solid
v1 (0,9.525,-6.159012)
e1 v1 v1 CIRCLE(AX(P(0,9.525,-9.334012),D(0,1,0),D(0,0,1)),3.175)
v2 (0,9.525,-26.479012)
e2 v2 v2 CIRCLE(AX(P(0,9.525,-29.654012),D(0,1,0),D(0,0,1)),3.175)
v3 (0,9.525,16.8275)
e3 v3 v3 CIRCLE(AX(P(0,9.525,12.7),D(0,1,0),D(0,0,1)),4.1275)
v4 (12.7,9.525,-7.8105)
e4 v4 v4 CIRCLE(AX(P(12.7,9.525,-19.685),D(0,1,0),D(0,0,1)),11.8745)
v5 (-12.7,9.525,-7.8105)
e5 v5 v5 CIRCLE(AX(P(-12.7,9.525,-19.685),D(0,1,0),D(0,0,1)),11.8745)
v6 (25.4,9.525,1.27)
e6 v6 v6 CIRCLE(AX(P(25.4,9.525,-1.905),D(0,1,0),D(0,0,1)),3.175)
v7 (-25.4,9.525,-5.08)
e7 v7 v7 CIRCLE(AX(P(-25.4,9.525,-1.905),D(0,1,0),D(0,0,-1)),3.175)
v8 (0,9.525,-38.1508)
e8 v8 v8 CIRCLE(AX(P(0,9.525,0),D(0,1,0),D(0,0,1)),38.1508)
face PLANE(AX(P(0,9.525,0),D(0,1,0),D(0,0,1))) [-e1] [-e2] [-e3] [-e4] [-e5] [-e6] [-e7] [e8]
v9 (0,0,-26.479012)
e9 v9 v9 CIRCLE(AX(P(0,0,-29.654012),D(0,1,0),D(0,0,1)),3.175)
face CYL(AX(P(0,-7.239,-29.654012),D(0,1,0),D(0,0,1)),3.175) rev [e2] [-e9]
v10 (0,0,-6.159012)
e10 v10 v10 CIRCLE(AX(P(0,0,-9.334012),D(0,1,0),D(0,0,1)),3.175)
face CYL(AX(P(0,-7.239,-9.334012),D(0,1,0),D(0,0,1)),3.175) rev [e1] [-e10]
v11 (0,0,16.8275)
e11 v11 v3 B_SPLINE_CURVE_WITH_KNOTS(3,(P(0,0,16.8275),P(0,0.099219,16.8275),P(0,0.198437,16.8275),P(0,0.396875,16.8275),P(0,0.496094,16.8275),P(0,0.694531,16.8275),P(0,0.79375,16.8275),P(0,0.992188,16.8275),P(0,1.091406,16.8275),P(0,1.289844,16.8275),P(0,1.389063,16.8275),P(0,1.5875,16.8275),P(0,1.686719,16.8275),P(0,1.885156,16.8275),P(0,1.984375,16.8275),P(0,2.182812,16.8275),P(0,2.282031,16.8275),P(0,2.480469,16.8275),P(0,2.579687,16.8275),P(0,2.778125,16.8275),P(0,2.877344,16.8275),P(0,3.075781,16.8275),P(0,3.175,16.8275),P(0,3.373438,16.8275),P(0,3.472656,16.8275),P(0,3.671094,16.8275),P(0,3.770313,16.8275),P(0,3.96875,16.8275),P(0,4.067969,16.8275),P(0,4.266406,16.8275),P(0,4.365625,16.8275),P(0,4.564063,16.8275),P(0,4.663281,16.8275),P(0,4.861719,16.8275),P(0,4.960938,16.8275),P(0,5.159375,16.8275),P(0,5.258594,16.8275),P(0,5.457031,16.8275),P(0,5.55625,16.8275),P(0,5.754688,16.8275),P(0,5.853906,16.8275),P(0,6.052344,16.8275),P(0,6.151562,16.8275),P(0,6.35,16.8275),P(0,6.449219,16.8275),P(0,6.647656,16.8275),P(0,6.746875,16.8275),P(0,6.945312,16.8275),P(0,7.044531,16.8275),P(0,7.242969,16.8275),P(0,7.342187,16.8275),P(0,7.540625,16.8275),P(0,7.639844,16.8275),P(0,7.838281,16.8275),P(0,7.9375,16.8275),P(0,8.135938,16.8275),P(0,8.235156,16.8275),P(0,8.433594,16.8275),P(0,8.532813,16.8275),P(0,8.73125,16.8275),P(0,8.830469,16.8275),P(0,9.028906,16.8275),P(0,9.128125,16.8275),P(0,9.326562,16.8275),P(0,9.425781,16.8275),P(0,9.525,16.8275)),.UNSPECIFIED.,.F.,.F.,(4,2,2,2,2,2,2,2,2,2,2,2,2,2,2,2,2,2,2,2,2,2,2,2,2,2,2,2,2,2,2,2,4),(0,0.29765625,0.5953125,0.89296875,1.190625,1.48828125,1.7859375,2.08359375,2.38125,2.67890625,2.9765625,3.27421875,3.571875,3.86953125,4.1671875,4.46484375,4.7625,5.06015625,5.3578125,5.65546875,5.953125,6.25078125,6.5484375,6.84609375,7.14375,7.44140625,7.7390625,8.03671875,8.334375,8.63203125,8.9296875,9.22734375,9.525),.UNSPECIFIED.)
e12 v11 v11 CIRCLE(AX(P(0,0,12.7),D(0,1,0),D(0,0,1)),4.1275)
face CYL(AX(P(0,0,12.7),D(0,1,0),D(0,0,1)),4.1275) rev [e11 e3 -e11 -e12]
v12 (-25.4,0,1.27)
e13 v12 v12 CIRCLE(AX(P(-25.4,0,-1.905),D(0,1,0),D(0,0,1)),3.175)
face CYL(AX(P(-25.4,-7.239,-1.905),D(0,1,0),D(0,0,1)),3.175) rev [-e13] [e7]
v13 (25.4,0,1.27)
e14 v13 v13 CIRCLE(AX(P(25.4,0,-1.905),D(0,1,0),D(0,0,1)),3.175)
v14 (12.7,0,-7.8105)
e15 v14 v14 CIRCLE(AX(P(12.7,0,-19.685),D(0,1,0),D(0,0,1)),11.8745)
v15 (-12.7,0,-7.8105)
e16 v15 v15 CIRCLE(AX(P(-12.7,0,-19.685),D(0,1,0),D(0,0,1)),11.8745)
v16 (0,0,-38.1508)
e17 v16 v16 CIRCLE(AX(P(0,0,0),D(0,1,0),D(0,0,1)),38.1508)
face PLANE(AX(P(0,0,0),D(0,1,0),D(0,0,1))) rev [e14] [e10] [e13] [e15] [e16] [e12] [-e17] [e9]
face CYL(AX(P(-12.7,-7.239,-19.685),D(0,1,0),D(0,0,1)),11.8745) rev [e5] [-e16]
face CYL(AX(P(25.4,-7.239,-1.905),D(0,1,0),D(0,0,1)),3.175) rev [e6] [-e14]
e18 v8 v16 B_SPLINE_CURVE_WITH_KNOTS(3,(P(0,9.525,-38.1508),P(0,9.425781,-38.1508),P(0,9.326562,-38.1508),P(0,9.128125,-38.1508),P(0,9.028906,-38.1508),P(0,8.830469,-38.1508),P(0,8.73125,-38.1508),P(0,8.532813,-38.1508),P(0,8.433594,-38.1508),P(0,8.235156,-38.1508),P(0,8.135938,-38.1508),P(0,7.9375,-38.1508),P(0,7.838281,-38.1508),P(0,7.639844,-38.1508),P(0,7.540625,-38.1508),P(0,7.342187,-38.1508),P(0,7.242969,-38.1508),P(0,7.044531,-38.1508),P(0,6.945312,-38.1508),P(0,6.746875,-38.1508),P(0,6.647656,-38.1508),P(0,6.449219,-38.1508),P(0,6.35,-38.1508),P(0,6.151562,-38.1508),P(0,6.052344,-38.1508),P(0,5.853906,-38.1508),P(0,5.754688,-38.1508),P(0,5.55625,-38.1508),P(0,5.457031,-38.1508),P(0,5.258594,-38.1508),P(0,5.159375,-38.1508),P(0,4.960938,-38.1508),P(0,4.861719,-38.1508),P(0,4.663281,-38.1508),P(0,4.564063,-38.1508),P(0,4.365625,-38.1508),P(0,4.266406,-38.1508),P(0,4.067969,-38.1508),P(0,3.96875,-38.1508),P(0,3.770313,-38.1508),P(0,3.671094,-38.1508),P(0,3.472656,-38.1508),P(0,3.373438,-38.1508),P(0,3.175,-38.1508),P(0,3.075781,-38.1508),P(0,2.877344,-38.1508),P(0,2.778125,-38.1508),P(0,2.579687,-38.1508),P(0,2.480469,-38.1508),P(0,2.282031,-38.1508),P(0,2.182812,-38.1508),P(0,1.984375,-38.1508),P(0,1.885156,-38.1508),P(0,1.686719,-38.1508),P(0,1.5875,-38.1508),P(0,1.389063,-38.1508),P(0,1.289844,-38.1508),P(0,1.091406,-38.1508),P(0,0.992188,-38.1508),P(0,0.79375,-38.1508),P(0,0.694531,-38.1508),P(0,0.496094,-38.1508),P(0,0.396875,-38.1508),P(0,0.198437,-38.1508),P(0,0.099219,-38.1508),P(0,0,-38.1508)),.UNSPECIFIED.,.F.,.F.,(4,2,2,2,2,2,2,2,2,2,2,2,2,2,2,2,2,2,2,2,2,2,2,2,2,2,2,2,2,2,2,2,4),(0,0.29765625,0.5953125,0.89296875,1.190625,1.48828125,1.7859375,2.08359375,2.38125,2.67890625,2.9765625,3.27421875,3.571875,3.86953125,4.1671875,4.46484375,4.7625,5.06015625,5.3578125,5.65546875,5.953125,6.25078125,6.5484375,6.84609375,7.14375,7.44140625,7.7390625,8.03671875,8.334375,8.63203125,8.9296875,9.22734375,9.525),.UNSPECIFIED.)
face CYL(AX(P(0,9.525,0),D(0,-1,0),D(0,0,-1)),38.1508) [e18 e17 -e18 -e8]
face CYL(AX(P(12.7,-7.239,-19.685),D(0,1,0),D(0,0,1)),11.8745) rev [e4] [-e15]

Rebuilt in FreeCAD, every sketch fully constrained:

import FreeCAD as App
import Part
import Sketcher

V = App.Vector
Q = App.Units.Quantity

doc = App.newDocument("Part")
body = doc.addObject("PartDesign::Body", "Body")

# Sketch on XZ plane
sketch1 = body.newObject("Sketcher::SketchObject", "Sketch")
sketch1.AttachmentSupport = (doc.getObject("XZ_Plane"), [""])
sketch1.MapMode = "FlatFace"
sketch1.addGeometry(Part.Circle(V(0, 0, 0), V(0, 0, 1), 38.1508), False)
sketch1.addConstraint([
    Sketcher.Constraint("Coincident", 0, 3, -1, 1),
    Sketcher.Constraint("Diameter", 0, Q("3.004 in")),
])
pad1 = body.newObject("PartDesign::Pad", "Pad")
pad1.Profile = sketch1
pad1.Length = Q("0.375 in")
pad1.Reversed = True

# Sketch on XZ plane
sketch2 = body.newObject("Sketcher::SketchObject", "Sketch001")
sketch2.AttachmentSupport = (doc.getObject("XZ_Plane"), [""])
sketch2.MapMode = "FlatFace"
sketch2.AttachmentOffset = App.Placement(V(0, 0, -0.375 * 25.4), App.Rotation())
sketch2.addGeometry([
    Part.Circle(V(-12.7, -19.685, 0), V(0, 0, 1), 11.8745),
    Part.Circle(V(12.7, -19.685, 0), V(0, 0, 1), 11.8745),
    Part.Circle(V(0, -29.654012, 0), V(0, 0, 1), 3.175),
    Part.Circle(V(0, -9.334012, 0), V(0, 0, 1), 3.175),
], False)
sketch2.addConstraint([
    Sketcher.Constraint("Equal", 0, 1),
    Sketcher.Constraint("Equal", 2, 3),
    Sketcher.Constraint("Symmetric", 0, 3, 1, 3, -2),
    Sketcher.Constraint("PointOnObject", 2, 3, -2),
    Sketcher.Constraint("PointOnObject", 3, 3, -2),
    Sketcher.Constraint("Diameter", 2, Q("0.25 in")),
    Sketcher.Constraint("Diameter", 0, Q("0.935 in")),
    Sketcher.Constraint("DistanceX", 0, 3, 1, 3, Q("1 in")),
    Sketcher.Constraint("DistanceY", 2, 3, 3, 3, Q("0.8 in")),
    Sketcher.Constraint("DistanceY", 0, 3, -1, 1, Q("0.775 in")),
    Sketcher.Constraint("DistanceY", 2, 3, -1, 1, Q("29.654012 mm")),
])
pocket1 = body.newObject("PartDesign::Pocket", "Pocket")
pocket1.Profile = sketch2
pocket1.Length = Q("0.66 in")
pocket1.Reversed = True

# Sketch on XZ plane
sketch3 = body.newObject("Sketcher::SketchObject", "Sketch002")
sketch3.AttachmentSupport = (doc.getObject("XZ_Plane"), [""])
sketch3.MapMode = "FlatFace"
sketch3.AttachmentOffset = App.Placement(V(0, 0, -0.375 * 25.4), App.Rotation())
sketch3.addGeometry([
    Part.Circle(V(25.4, -1.905, 0), V(0, 0, 1), 3.175),
    Part.Circle(V(-25.4, -1.905, 0), V(0, 0, 1), 3.175),
], False)
sketch3.addConstraint([
    Sketcher.Constraint("Equal", 0, 1),
    Sketcher.Constraint("Symmetric", 0, 3, 1, 3, -2),
    Sketcher.Constraint("Diameter", 0, Q("0.25 in")),
    Sketcher.Constraint("DistanceX", -1, 1, 0, 3, Q("1 in")),
    Sketcher.Constraint("DistanceY", 0, 3, -1, 1, Q("0.075 in")),
])
pocket2 = body.newObject("PartDesign::Pocket", "Pocket001")
pocket2.Profile = sketch3
pocket2.Length = Q("0.66 in")
pocket2.Reversed = True

# Sketch on XZ plane
sketch4 = body.newObject("Sketcher::SketchObject", "Sketch003")
sketch4.AttachmentSupport = (doc.getObject("XZ_Plane"), [""])
sketch4.MapMode = "FlatFace"
sketch4.AttachmentOffset = App.Placement(V(0, 0, -0.375 * 25.4), App.Rotation())
sketch4.addGeometry(Part.Circle(V(0, 12.7, 0), V(0, 0, 1), 4.1275), False)
sketch4.addConstraint([
    Sketcher.Constraint("PointOnObject", 0, 3, -2),
    Sketcher.Constraint("Diameter", 0, Q("0.325 in")),
    Sketcher.Constraint("DistanceY", -1, 1, 0, 3, Q("0.5 in")),
])
pocket3 = body.newObject("PartDesign::Pocket", "Pocket002")
pocket3.Profile = sketch4
pocket3.Type = "ThroughAll"
pocket3.Reversed = True

doc.recompute()
